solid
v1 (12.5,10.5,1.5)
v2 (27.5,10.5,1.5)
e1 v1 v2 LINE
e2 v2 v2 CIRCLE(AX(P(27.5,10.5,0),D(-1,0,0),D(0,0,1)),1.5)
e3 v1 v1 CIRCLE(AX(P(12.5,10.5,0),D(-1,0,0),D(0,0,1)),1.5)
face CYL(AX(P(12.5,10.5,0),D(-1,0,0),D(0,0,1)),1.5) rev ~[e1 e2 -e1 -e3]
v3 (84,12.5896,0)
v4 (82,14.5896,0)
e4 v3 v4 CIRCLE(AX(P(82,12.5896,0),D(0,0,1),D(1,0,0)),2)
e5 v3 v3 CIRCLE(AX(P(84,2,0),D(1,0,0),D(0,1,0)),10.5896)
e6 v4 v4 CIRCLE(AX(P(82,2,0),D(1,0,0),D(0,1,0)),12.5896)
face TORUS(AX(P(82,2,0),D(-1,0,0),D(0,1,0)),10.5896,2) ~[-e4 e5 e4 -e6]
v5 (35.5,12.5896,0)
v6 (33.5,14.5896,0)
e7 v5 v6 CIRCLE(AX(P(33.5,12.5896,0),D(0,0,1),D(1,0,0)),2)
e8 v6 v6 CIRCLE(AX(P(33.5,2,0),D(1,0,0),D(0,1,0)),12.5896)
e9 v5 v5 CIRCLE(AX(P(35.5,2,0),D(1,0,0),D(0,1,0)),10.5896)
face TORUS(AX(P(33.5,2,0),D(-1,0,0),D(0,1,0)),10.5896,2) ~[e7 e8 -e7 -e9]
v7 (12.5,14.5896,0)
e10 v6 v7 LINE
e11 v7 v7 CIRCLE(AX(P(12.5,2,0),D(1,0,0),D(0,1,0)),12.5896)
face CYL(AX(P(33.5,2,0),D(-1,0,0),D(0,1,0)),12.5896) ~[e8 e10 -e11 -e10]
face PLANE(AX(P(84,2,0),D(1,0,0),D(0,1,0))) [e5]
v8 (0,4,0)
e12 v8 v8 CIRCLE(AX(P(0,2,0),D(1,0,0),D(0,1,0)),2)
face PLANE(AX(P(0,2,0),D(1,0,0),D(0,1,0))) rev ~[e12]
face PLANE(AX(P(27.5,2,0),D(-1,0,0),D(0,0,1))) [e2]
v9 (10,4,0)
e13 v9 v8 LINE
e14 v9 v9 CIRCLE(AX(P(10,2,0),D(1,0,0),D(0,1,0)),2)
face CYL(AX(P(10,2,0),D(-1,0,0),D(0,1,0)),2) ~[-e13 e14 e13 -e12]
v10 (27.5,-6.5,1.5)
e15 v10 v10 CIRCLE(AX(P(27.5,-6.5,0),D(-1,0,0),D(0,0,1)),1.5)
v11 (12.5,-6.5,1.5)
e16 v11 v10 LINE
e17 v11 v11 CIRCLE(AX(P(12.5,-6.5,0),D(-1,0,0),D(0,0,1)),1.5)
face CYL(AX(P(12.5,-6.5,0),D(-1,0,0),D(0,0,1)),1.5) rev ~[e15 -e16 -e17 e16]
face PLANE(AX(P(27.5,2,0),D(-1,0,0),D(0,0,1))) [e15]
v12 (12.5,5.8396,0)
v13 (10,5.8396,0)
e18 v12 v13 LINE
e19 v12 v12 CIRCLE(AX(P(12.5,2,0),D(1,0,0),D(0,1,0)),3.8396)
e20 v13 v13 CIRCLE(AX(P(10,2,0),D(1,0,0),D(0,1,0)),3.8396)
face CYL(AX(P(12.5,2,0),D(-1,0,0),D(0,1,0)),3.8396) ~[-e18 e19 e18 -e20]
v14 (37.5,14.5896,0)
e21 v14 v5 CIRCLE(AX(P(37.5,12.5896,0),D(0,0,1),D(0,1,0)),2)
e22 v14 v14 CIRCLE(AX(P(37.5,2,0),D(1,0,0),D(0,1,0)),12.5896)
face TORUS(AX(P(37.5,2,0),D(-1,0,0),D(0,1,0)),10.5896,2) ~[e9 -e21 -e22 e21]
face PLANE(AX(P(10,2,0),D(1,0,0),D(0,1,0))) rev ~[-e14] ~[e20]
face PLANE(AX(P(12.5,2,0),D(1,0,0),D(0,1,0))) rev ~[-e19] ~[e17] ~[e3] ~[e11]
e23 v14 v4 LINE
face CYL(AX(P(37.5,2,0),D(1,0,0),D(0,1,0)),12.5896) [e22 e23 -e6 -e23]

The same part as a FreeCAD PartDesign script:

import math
import FreeCAD as App
import Part
import Sketcher

V = App.Vector
Q = App.Units.Quantity

doc = App.newDocument("Part")
body = doc.addObject("PartDesign::Body", "Body")

# Sketch on XY plane
sketch1 = body.newObject("Sketcher::SketchObject", "Sketch")
sketch1.AttachmentSupport = (doc.getObject("XY_Plane"), [""])
sketch1.MapMode = "FlatFace"
sketch1.addGeometry([
    Part.LineSegment(V(0, 4, 0), V(0, 2, 0)),  # 0
    Part.LineSegment(V(0, 2, 0), V(84, 2, 0)),  # 1
    Part.LineSegment(V(84, 2, 0), V(84, 12.6, 0)),  # 2
    Part.ArcOfCircle(Part.Circle(V(82, 12.6, 0), V(0, 0, 1), 2), math.radians(0), math.radians(90)),  # 3
    Part.LineSegment(V(82, 14.6, 0), V(37.5, 14.6, 0)),  # 4
    Part.ArcOfCircle(Part.Circle(V(37.5, 12.6, 0), V(0, 0, 1), 2), math.radians(90), math.radians(180)),  # 5
    Part.ArcOfCircle(Part.Circle(V(33.5, 12.6, 0), V(0, 0, 1), 2), math.radians(0), math.radians(90)),  # 6
    Part.LineSegment(V(33.5, 14.6, 0), V(12.5, 14.6, 0)),  # 7
    Part.LineSegment(V(12.5, 14.6, 0), V(12.5, 5.8, 0)),  # 8
    Part.LineSegment(V(12.5, 5.8, 0), V(10, 5.8, 0)),  # 9
    Part.LineSegment(V(10, 5.8, 0), V(10, 4, 0)),  # 10
    Part.LineSegment(V(10, 4, 0), V(0, 4, 0)),  # 11
], False)
sketch1.addGeometry(Part.LineSegment(V(0, 2, 0), V(84, 2, 0)), True)  # axis
sketch1.addConstraint([
    Sketcher.Constraint("Coincident", 0, 2, 1, 1),
    Sketcher.Constraint("Coincident", 1, 2, 2, 1),
    Sketcher.Constraint("Tangent", 2, 2, 3, 1),
    Sketcher.Constraint("Tangent", 3, 2, 4, 1),
    Sketcher.Constraint("Tangent", 4, 2, 5, 1),
    Sketcher.Constraint("Tangent", 5, 2, 6, 1),
    Sketcher.Constraint("Tangent", 6, 2, 7, 1),
    Sketcher.Constraint("Coincident", 7, 2, 8, 1),
    Sketcher.Constraint("Coincident", 8, 2, 9, 1),
    Sketcher.Constraint("Coincident", 9, 2, 10, 1),
    Sketcher.Constraint("Coincident", 10, 2, 11, 1),
    Sketcher.Constraint("Coincident", 11, 2, 0, 1),
    Sketcher.Constraint("Vertical", 0),
    Sketcher.Constraint("Horizontal", 1),
    Sketcher.Constraint("Vertical", 2),
    Sketcher.Constraint("Horizontal", 4),
    Sketcher.Constraint("Horizontal", 7),
    Sketcher.Constraint("Vertical", 8),
    Sketcher.Constraint("Horizontal", 9),
    Sketcher.Constraint("Vertical", 10),
    Sketcher.Constraint("Horizontal", 11),
    Sketcher.Constraint("Horizontal", 12),
    Sketcher.Constraint("Coincident", 12, 1, 0, 2),
    Sketcher.Constraint("Equal", 3, 5),
    Sketcher.Constraint("Equal", 5, 6),
    Sketcher.Constraint("PointOnObject", 0, 2, -2),
    Sketcher.Constraint("Horizontal", 5, 3, 6, 3),
    Sketcher.Constraint("Vertical", 2, 2, 12, 2),
    Sketcher.Constraint("Radius", 3, Q("2 mm")),
    Sketcher.Constraint("DistanceX", 11, 2, 11, 1, Q("10 mm")),
    Sketcher.Constraint("DistanceY", 0, 2, 0, 1, Q("2 mm")),
    Sketcher.Constraint("DistanceX", 9, 2, 9, 1, Q("2.5 mm")),
    Sketcher.Constraint("DistanceY", -1, 1, 0, 2, Q("2 mm")),
    Sketcher.Constraint("DistanceX", 7, 2, 5, 2, Q("23 mm")),
    Sketcher.Constraint("DistanceY", 8, 2, 8, 1, Q("8.75 mm")),
    Sketcher.Constraint("DistanceX", 1, 1, 1, 2, Q("84 mm")),
    Sketcher.Constraint("DistanceY", 2, 1, 2, 2, Q("10.5896 mm")),
])
revolution = body.newObject("PartDesign::Revolution", "Revolution")
revolution.Profile = sketch1
revolution.ReferenceAxis = (sketch1, ["Axis0"])
revolution.Angle = 360

# Sketch on YZ plane
sketch2 = body.newObject("Sketcher::SketchObject", "Sketch001")
sketch2.AttachmentSupport = (doc.getObject("YZ_Plane"), [""])
sketch2.MapMode = "FlatFace"
sketch2.AttachmentOffset = App.Placement(V(0, 0, 12.5), App.Rotation())
sketch2.addGeometry([
    Part.Circle(V(10.5, 0, 0), V(0, 0, 1), 1.5),
    Part.Circle(V(-6.5, 0, 0), V(0, 0, 1), 1.5),
], False)
sketch2.addConstraint([
    Sketcher.Constraint("Equal", 0, 1),
    Sketcher.Constraint("PointOnObject", 0, 3, -1),
    Sketcher.Constraint("PointOnObject", 1, 3, -1),
    Sketcher.Constraint("Diameter", 0, Q("3 mm")),
    Sketcher.Constraint("DistanceX", 1, 3, 0, 3, Q("17 mm")),
    Sketcher.Constraint("DistanceX", -1, 1, 0, 3, Q("10.5 mm")),
])
pocket1 = body.newObject("PartDesign::Pocket", "Pocket")
pocket1.Profile = sketch2
pocket1.Length = 15
pocket1.Reversed = True

doc.recompute()
